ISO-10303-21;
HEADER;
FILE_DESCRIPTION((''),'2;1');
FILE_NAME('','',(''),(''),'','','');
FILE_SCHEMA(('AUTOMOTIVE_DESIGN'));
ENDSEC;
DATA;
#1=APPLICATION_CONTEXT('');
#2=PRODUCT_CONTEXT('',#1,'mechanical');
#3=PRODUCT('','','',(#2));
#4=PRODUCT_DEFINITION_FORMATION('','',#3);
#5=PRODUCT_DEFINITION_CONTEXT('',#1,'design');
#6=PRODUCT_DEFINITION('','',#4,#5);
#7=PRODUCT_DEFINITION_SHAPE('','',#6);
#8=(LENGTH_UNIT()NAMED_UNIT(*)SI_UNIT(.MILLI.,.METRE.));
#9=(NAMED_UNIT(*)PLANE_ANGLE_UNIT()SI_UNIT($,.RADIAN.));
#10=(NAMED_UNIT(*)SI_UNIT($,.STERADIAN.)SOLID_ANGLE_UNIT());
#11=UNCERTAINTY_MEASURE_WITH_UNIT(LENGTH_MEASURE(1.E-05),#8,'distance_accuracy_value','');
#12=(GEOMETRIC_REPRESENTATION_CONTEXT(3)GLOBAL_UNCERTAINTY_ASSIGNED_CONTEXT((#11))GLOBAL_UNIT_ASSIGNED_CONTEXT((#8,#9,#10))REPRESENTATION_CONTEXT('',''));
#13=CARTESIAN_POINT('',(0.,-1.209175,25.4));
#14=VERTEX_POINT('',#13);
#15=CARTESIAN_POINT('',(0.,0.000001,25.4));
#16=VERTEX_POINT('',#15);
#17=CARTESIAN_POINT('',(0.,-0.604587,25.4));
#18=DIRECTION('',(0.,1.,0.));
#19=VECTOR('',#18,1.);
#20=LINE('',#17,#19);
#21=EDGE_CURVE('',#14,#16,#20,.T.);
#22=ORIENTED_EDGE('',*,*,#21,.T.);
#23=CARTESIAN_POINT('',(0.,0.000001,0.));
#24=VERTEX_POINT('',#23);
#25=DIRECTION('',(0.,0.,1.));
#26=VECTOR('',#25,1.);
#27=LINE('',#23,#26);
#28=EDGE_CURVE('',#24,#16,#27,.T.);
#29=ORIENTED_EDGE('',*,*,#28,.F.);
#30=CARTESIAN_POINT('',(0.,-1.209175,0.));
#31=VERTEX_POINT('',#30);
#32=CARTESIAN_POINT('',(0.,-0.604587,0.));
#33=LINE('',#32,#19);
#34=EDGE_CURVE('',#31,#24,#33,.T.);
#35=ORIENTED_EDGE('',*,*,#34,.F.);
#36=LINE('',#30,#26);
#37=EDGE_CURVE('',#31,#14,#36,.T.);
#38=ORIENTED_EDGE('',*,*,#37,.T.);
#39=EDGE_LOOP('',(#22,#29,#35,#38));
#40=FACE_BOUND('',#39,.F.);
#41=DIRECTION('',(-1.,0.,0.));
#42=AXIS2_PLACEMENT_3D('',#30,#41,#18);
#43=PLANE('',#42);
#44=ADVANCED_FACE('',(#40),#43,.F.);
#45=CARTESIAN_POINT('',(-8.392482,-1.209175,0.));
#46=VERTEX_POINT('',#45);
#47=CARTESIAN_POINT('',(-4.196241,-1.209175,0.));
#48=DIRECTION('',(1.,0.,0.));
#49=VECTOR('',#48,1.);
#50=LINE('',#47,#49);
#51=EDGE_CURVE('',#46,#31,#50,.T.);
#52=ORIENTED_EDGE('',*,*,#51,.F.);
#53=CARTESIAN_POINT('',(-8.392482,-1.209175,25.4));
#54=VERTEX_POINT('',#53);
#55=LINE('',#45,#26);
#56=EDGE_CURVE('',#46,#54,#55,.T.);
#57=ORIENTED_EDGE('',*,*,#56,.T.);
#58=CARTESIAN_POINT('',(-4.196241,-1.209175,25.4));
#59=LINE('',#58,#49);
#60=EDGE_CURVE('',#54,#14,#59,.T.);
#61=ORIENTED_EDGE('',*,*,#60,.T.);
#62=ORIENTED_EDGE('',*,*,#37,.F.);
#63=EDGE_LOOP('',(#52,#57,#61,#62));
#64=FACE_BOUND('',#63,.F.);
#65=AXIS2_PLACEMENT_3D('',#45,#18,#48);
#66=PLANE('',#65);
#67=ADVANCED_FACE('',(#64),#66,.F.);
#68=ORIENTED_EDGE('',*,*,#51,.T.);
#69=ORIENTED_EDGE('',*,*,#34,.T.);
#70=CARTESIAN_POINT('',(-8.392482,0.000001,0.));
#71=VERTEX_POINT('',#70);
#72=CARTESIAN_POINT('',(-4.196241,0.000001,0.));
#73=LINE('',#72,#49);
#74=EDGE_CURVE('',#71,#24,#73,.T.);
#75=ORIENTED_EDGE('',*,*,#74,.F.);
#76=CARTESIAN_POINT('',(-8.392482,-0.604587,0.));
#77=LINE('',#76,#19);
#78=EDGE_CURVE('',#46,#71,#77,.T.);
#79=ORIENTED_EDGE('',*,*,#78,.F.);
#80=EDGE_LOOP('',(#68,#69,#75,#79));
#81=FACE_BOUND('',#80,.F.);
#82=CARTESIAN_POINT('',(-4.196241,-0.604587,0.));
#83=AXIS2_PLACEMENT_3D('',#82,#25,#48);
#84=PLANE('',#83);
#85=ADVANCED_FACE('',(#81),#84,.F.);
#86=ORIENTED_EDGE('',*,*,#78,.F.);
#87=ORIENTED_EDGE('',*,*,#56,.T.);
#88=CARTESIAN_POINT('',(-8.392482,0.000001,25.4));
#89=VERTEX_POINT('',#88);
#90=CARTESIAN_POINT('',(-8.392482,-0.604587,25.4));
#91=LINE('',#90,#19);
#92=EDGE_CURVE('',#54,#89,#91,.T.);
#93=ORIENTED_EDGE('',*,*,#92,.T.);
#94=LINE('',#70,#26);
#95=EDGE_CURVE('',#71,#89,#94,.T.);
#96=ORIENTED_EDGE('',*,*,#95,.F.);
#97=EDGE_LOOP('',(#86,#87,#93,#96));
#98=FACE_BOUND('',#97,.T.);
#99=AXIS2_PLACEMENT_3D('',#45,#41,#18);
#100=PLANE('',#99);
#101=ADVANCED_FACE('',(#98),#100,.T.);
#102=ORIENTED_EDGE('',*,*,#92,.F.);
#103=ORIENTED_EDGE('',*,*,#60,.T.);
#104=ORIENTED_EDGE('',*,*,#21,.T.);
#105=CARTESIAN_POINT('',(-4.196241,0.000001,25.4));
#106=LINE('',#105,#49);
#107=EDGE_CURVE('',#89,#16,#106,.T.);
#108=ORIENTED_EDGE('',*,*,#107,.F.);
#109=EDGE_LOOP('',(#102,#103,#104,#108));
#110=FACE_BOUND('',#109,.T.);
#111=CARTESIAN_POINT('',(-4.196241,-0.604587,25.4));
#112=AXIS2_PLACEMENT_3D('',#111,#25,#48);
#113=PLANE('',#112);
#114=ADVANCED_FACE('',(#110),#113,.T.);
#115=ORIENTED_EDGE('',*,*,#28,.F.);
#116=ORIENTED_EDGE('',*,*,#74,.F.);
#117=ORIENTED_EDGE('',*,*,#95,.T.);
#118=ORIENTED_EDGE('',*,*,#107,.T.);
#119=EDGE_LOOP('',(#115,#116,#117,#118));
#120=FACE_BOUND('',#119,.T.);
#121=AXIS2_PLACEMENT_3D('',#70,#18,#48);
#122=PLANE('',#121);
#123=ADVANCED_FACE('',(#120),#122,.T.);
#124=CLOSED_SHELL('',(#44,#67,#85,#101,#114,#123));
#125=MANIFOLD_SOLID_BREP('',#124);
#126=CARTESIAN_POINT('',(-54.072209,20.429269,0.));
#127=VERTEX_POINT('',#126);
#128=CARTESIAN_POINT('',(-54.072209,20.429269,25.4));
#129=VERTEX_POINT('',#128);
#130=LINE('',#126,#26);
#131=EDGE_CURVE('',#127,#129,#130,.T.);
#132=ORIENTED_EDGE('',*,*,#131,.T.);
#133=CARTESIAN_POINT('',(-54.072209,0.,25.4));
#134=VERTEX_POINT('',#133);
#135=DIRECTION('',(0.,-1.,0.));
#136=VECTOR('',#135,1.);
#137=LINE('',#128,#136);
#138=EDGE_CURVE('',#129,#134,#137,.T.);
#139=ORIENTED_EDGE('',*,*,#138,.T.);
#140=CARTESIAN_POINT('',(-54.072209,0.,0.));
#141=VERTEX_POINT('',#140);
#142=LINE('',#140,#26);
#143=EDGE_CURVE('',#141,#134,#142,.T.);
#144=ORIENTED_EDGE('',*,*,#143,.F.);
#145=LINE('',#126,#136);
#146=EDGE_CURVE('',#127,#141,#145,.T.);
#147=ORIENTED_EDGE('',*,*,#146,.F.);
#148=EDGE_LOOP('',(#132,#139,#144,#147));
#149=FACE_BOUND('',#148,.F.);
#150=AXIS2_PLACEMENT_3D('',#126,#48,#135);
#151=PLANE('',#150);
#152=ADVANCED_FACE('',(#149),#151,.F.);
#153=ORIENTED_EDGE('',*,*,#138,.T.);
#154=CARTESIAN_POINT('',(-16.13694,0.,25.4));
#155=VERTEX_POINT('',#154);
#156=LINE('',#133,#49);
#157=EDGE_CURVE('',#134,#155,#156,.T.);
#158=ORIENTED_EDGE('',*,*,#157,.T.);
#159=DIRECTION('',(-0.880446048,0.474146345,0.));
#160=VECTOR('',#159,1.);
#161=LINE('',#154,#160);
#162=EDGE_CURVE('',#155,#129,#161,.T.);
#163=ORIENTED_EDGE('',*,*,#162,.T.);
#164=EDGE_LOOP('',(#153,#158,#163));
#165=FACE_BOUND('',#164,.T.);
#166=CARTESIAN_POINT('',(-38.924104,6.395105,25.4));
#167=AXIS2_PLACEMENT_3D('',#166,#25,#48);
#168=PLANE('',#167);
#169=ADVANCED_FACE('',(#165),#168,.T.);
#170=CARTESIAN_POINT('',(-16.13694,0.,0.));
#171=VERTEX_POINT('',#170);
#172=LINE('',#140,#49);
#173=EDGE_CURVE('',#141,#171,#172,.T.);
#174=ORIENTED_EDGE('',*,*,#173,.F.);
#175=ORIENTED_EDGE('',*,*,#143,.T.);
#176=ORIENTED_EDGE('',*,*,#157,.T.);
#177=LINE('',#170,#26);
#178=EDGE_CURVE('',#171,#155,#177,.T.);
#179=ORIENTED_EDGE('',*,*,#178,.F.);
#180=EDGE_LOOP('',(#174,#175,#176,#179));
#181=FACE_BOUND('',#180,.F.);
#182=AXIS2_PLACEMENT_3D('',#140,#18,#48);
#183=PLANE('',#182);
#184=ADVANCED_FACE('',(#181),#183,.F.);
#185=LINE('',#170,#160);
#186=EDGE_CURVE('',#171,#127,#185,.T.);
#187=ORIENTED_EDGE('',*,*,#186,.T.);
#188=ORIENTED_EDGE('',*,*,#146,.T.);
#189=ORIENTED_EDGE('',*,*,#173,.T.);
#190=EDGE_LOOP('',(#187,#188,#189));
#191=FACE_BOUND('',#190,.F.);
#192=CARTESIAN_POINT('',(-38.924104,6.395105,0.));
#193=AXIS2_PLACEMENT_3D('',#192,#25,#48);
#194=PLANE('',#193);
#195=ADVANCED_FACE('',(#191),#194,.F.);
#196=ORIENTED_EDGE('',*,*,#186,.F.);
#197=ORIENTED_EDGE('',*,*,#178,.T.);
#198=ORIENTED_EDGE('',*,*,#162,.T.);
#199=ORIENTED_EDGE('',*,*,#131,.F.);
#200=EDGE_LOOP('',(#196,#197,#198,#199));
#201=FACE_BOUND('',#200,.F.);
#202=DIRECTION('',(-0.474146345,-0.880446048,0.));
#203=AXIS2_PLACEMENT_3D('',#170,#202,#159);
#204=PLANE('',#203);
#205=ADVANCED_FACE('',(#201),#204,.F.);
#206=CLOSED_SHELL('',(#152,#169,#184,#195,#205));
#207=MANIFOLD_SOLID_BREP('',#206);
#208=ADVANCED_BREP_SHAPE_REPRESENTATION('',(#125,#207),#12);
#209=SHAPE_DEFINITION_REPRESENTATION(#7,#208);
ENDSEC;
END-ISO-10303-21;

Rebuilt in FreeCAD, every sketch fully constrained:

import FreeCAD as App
import Part
import Sketcher

V = App.Vector
Q = App.Units.Quantity


def add_polygon(sketch, points):
    """Adds a closed chain of lines whose ends are joined by coincident constraints."""
    first, n = sketch.GeometryCount, len(points)
    for a, b in zip(points, points[1:] + points[:1]):
        sketch.addGeometry(Part.LineSegment(App.Vector(*a, 0), App.Vector(*b, 0)), False)
    for i in range(n):
        sketch.addConstraint(Sketcher.Constraint("Coincident", first + i, 2, first + (i + 1) % n, 1))

doc = App.newDocument("Part")
params = doc.addObject("Spreadsheet::Sheet", "Params")
for row, (alias, value) in enumerate([
    ("pad1_length", "1 in"),
], start=1):
    params.set(f"A{row}", alias)
    params.set(f"B{row}", "=" + value)
    params.setAlias(f"B{row}", alias)

body = doc.addObject("PartDesign::Body", "Body")
body.AllowCompound = True

# Sketch on XY plane
sketch1 = body.newObject("Sketcher::SketchObject", "Sketch")
sketch1.AttachmentSupport = (doc.getObject("XY_Plane"), [""])
sketch1.MapMode = "FlatFace"
add_polygon(sketch1, [(-8.4, 0), (-8.4, -1.2), (0, -1.2), (0, 0)])  # lines 0-3
add_polygon(sketch1, [(-54.1, 0), (-16.1, 0), (-54.1, 20.4)])  # lines 4-6
sketch1.addConstraint([
    Sketcher.Constraint("Vertical", 0),
    Sketcher.Constraint("Horizontal", 1),
    Sketcher.Constraint("Vertical", 2),
    Sketcher.Constraint("Horizontal", 3),
    Sketcher.Constraint("Horizontal", 4),
    Sketcher.Constraint("Vertical", 6),
    Sketcher.Constraint("Coincident", 2, 2, -1, 1),
    Sketcher.Constraint("PointOnObject", 4, 2, -1),
    Sketcher.Constraint("DistanceX", 4, 2, 3, 2, Q("0.3048999 in")),
    Sketcher.Constraint("DistanceX", 1, 1, 1, 2, 8.392481),
    Sketcher.Constraint("DistanceX", 4, 1, 4, 2, 37.935269),
    Sketcher.Constraint("DistanceY", 6, 2, 6, 1, 20.429269),
    Sketcher.Constraint("DistanceY", 0, 2, 0, 1, 1.209175),
])
pad1 = body.newObject("PartDesign::Pad", "Pad")
pad1.Profile = sketch1
pad1.setExpression("Length", "Params.pad1_length")

doc.recompute()
